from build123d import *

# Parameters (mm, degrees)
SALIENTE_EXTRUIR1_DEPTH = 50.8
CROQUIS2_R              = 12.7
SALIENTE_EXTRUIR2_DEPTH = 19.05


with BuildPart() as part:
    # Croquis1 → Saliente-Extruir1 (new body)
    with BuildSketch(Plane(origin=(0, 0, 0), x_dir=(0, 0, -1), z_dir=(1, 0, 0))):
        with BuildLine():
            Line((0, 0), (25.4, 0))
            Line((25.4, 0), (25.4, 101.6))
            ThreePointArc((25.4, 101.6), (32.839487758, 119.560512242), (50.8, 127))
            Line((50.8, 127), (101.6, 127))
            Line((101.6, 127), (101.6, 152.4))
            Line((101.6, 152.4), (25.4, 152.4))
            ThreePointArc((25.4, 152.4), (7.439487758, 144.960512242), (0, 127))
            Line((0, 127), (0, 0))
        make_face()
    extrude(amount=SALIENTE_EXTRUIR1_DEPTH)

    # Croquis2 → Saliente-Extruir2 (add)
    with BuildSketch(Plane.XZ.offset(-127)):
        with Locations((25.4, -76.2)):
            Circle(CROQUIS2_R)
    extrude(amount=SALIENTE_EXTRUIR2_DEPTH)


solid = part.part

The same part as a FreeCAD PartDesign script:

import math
import FreeCAD as App
import Part
import Sketcher
from FreeCAD import Vector
Q = App.Units.Quantity

doc = App.newDocument("Part")
params = doc.addObject("Spreadsheet::Sheet", "Params")
for row, (alias, value) in enumerate([
    ("sketch1_radius", "1 in"),
    ("sketch1_width", "4 in"),
    ("sketch1_height", "2 in"),
    ("pad1_length", "2 in"),
    ("sketch2_diameter", "1 in"),
    ("pad2_length", "0.75 in"),
], start=1):
    params.set(f"A{row}", alias)
    params.set(f"B{row}", "=" + value)
    params.setAlias(f"B{row}", alias)

body = doc.addObject("PartDesign::Body", "Body")

# Sketch on YZ plane
sketch1 = body.newObject("Sketcher::SketchObject", "Sketch")
sketch1.AttachmentSupport = (doc.getObject("YZ_Plane"), [""])
sketch1.MapMode = "FlatFace"
sketch1.addGeometry([
    Part.LineSegment(Vector(0, 0, 0), Vector(0, -25, 0)),  # 0
    Part.LineSegment(Vector(0, -25, 0), Vector(102, -25, 0)),  # 1
    Part.ArcOfCircle(Part.Circle(Vector(102, -51, 0), Vector(0, 0, 1), 25), math.radians(0), math.radians(90)),  # 2
    Part.LineSegment(Vector(127, -51, 0), Vector(127, -102, 0)),  # 3
    Part.LineSegment(Vector(127, -102, 0), Vector(152, -102, 0)),  # 4
    Part.LineSegment(Vector(152, -102, 0), Vector(152, -25, 0)),  # 5
    Part.ArcOfCircle(Part.Circle(Vector(127, -25, 0), Vector(0, 0, 1), 25), math.radians(0), math.radians(90)),  # 6
    Part.LineSegment(Vector(127, 0, 0), Vector(0, 0, 0)),  # 7
], False)
sketch1.addConstraint([
    Sketcher.Constraint("Coincident", 0, 2, 1, 1),
    Sketcher.Constraint("Tangent", 1, 2, 2, 2),
    Sketcher.Constraint("Tangent", 2, 1, 3, 1),
    Sketcher.Constraint("Coincident", 3, 2, 4, 1),
    Sketcher.Constraint("Coincident", 4, 2, 5, 1),
    Sketcher.Constraint("Tangent", 5, 2, 6, 1),
    Sketcher.Constraint("Tangent", 6, 2, 7, 1),
    Sketcher.Constraint("Coincident", 7, 2, 0, 1),
    Sketcher.Constraint("Vertical", 0),
    Sketcher.Constraint("Horizontal", 1),
    Sketcher.Constraint("Vertical", 3),
    Sketcher.Constraint("Horizontal", 4),
    Sketcher.Constraint("Vertical", 5),
    Sketcher.Constraint("Horizontal", 7),
    Sketcher.Constraint("Coincident", 7, 2, -1, 1),
    Sketcher.Constraint("Equal", 2, 6),
    Sketcher.Constraint("Horizontal", 6, 3, 0, 2),
    Sketcher.Constraint("Vertical", 6, 3, 2, 1),
    Sketcher.Constraint("Radius", 2, Q("1 in")),
    Sketcher.Constraint("DistanceX", 1, 1, 1, 2, Q("4 in")),
    Sketcher.Constraint("DistanceY", 3, 2, 3, 1, Q("2 in")),
])
sketch1.setExpression("Constraints[18]", "Params.sketch1_radius")
sketch1.setExpression("Constraints[19]", "Params.sketch1_width")
sketch1.setExpression("Constraints[20]", "Params.sketch1_height")
pad1 = body.newObject("PartDesign::Pad", "Pad")
pad1.Profile = sketch1
pad1.setExpression("Length", "Params.pad1_length")

# Sketch on XZ plane
sketch2 = body.newObject("Sketcher::SketchObject", "Sketch001")
sketch2.AttachmentSupport = (doc.getObject("XZ_Plane"), [""])
sketch2.MapMode = "FlatFace"
sketch2.AttachmentOffset = App.Placement(Vector(0, 0, -5 * 25.4), App.Rotation())
sketch2.addGeometry(Part.Circle(Vector(25, -76, 0), Vector(0, 0, 1), 13), False)
sketch2.addConstraint([
    Sketcher.Constraint("Diameter", 0, Q("1 in")),
    Sketcher.Constraint("DistanceX", -1, 1, 0, 3, Q("1 in")),
    Sketcher.Constraint("DistanceY", 0, 3, -1, 1, Q("3 in")),
])
sketch2.setExpression("Constraints[0]", "Params.sketch2_diameter")
pad2 = body.newObject("PartDesign::Pad", "Pad001")
pad2.Profile = sketch2
pad2.setExpression("Length", "Params.pad2_length")

doc.recompute()
